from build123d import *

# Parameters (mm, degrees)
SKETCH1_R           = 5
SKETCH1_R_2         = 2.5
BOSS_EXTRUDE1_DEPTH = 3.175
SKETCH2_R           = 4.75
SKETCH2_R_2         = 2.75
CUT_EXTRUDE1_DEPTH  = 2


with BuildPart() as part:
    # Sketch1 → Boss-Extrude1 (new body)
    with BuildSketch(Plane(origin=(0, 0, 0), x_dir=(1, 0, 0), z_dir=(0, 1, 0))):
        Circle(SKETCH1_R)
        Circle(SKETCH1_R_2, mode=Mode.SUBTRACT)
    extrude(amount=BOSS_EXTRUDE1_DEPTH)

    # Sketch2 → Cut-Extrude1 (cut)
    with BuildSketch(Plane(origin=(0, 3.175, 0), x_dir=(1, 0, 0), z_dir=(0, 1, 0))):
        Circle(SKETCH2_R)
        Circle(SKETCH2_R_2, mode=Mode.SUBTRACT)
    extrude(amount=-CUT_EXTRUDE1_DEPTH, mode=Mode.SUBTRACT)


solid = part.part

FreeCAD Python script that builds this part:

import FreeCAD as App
import Part
import Sketcher

doc = App.newDocument("Part")
body = doc.addObject("PartDesign::Body", "Body")

sketch1 = body.newObject("Sketcher::SketchObject", "Sketch")
sketch1.AttachmentSupport = (doc.getObject("XZ_Plane"), [""])
sketch1.MapMode = "FlatFace"
sketch1.addGeometry(Part.Circle(App.Vector(0, 0, 0), App.Vector(0, 0, 1), 5), False)
sketch1.addGeometry(Part.Circle(App.Vector(0, 0, 0), App.Vector(0, 0, 1), 2.5), False)
sketch1.addConstraint(Sketcher.Constraint("Coincident", 0, 3, -1, 1))
sketch1.addConstraint(Sketcher.Constraint("Coincident", 1, 3, -1, 1))
sketch1.addConstraint(Sketcher.Constraint("Diameter", 0, 10.0))
sketch1.addConstraint(Sketcher.Constraint("Diameter", 1, 5.0))
pad1 = body.newObject("PartDesign::Pad", "Pad")
pad1.Profile = sketch1
pad1.Length = 3.175
pad1.Reversed = True

sketch2 = body.newObject("Sketcher::SketchObject", "Sketch001")
sketch2.AttachmentSupport = (doc.getObject("XZ_Plane"), [""])
sketch2.MapMode = "FlatFace"
sketch2.AttachmentOffset = App.Placement(App.Vector(0, 0, -3.175), App.Rotation())
sketch2.addGeometry(Part.Circle(App.Vector(0, 0, 0), App.Vector(0, 0, 1), 4.8), False)
sketch2.addGeometry(Part.Circle(App.Vector(0, 0, 0), App.Vector(0, 0, 1), 2.8), False)
sketch2.addConstraint(Sketcher.Constraint("Coincident", 0, 3, -1, 1))
sketch2.addConstraint(Sketcher.Constraint("Coincident", 1, 3, -1, 1))
sketch2.addConstraint(Sketcher.Constraint("Diameter", 0, 9.5))
sketch2.addConstraint(Sketcher.Constraint("Diameter", 1, 5.5))
pocket1 = body.newObject("PartDesign::Pocket", "Pocket")
pocket1.Profile = sketch2
pocket1.Length = 2
pocket1.Reversed = True

doc.recompute()
